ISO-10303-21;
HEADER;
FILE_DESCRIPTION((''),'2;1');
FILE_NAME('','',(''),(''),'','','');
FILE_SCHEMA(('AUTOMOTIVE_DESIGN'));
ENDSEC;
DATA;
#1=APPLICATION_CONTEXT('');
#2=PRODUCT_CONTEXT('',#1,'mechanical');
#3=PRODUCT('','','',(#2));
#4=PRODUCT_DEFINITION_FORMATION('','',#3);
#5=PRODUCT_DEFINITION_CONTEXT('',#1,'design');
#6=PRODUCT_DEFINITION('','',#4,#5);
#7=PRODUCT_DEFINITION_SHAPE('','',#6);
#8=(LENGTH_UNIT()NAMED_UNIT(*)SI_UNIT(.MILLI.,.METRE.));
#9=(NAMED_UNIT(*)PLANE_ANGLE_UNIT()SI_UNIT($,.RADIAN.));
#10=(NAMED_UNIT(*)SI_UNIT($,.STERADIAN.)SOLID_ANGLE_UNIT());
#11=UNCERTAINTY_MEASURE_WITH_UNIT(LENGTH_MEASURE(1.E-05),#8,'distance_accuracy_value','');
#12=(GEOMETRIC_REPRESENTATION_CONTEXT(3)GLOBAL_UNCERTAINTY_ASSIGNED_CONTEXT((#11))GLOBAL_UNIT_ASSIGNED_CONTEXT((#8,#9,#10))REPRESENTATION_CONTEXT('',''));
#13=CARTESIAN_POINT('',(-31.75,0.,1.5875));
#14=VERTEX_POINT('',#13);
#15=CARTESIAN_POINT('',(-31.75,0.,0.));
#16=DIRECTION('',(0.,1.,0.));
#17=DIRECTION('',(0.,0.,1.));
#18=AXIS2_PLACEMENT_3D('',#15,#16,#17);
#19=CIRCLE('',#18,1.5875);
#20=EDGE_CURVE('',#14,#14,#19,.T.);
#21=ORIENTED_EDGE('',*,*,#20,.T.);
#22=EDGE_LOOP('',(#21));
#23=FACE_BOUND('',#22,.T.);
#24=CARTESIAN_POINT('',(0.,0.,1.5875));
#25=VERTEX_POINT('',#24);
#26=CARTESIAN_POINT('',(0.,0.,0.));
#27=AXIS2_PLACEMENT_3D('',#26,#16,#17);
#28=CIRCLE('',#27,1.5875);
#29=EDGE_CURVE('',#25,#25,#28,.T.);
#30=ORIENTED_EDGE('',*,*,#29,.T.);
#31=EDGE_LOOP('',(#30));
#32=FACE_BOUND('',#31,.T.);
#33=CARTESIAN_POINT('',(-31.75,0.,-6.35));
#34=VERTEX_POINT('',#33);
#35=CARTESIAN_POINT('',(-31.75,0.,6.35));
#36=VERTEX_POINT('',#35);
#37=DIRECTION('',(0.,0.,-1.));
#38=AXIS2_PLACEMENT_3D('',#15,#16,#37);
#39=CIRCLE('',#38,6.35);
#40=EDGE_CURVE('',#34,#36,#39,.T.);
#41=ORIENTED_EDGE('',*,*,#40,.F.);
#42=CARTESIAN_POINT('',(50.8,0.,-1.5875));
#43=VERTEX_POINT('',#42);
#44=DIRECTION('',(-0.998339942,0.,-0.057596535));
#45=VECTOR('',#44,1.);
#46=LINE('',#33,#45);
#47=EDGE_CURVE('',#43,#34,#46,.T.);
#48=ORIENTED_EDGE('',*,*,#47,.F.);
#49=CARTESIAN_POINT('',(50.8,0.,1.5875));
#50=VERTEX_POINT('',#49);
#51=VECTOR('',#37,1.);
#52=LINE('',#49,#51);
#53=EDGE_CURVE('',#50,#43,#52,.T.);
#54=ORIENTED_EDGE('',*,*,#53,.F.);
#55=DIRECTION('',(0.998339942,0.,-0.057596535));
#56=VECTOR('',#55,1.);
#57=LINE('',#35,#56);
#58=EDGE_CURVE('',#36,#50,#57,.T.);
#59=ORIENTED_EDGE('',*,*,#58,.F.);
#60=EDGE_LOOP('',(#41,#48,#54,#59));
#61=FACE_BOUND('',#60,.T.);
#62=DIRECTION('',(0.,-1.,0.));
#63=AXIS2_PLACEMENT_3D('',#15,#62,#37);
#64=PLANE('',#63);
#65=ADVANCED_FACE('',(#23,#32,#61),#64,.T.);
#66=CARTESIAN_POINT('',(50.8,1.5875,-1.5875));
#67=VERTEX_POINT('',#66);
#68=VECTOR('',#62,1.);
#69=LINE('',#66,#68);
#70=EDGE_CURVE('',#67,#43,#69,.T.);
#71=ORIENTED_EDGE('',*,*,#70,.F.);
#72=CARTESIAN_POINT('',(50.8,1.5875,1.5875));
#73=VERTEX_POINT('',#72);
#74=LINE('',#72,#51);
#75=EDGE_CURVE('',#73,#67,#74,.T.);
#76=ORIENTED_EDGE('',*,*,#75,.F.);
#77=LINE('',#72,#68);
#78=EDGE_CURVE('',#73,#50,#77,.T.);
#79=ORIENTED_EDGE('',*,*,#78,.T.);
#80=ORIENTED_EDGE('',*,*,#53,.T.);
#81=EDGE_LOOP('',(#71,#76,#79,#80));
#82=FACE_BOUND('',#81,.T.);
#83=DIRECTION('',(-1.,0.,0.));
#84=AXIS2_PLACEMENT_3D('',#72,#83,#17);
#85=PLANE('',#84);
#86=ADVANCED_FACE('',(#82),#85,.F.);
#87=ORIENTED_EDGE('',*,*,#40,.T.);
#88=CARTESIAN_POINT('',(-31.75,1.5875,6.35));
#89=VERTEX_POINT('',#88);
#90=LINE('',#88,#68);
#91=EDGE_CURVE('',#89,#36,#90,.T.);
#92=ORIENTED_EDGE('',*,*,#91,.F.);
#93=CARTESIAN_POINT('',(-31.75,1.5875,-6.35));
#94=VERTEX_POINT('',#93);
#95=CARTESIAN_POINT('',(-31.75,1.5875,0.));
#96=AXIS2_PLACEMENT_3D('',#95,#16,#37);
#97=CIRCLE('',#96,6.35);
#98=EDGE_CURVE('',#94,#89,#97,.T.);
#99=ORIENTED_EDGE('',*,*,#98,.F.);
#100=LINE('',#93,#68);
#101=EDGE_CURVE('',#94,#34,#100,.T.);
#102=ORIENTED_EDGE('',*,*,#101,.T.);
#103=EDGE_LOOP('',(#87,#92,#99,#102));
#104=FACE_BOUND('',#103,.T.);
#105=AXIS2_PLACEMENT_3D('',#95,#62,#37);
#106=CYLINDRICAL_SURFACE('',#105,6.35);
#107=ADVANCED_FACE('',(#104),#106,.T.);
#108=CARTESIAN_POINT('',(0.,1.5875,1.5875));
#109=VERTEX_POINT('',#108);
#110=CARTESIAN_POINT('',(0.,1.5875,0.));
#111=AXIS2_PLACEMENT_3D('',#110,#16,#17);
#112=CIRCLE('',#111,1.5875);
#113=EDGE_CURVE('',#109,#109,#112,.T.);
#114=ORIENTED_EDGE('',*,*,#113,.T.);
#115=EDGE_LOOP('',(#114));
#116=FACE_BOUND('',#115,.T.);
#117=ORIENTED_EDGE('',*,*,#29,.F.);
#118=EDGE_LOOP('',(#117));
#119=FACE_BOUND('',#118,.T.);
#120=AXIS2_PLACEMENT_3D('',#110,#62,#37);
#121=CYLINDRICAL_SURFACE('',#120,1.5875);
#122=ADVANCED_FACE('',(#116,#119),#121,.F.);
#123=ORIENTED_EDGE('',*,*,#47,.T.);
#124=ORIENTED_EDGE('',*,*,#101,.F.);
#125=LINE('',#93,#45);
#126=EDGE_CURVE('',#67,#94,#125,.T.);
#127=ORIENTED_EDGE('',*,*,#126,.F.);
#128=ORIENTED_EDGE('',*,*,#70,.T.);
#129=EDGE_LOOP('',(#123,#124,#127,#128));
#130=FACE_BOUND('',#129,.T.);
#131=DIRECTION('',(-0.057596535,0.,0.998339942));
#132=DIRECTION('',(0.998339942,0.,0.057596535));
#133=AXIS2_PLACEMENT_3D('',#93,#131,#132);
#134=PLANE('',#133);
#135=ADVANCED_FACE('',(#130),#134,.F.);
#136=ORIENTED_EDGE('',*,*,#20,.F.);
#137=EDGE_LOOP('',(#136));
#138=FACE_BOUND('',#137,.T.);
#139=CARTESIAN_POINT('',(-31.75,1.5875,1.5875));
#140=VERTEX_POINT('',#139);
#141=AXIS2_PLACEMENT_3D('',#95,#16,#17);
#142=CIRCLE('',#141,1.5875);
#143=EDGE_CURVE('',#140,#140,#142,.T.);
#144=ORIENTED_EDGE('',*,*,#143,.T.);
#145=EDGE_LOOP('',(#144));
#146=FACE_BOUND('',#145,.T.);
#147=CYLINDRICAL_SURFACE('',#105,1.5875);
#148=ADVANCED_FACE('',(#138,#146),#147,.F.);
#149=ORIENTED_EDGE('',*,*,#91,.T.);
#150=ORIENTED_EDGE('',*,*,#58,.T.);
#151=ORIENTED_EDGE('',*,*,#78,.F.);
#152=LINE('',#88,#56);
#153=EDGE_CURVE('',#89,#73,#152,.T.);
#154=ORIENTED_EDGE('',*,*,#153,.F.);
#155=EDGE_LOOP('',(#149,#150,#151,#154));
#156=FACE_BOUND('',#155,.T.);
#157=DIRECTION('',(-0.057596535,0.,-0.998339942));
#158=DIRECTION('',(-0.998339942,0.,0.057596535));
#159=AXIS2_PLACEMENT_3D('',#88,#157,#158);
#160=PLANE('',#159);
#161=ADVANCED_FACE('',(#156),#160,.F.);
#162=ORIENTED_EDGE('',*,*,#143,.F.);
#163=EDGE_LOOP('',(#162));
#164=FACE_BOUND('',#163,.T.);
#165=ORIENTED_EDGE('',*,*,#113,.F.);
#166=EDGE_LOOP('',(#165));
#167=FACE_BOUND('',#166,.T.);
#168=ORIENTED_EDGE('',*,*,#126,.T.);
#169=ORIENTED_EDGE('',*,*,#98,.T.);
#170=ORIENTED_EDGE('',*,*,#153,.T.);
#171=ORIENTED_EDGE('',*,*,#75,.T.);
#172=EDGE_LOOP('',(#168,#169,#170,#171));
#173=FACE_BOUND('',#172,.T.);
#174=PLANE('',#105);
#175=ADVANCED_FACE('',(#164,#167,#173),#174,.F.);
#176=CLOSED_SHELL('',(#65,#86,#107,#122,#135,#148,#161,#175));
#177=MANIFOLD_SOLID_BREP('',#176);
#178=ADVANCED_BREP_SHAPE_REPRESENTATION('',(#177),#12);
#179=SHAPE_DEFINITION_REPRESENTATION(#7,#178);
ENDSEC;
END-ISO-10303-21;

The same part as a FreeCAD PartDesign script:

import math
import FreeCAD as App
import Part
import Sketcher
Q = App.Units.Quantity

doc = App.newDocument("Part")
body = doc.addObject("PartDesign::Body", "Body")

# Sketch on XZ plane
sketch1 = body.newObject("Sketcher::SketchObject", "Sketch")
sketch1.AttachmentSupport = (doc.getObject("XZ_Plane"), [""])
sketch1.MapMode = "FlatFace"
sketch1.addGeometry(Part.LineSegment(App.Vector(-31.75, 6.35, 0), App.Vector(50.8, 1.5875, 0)), False)
sketch1.addGeometry(Part.LineSegment(App.Vector(50.8, 1.5875, 0), App.Vector(50.8, -1.5875, 0)), False)
sketch1.addGeometry(Part.LineSegment(App.Vector(50.8, -1.5875, 0), App.Vector(-31.75, -6.35, 0)), False)
sketch1.addGeometry(Part.ArcOfCircle(Part.Circle(App.Vector(-31.75, 0, 0), App.Vector(0, 0, 1), 6.35), math.radians(90), math.radians(270)), False)
sketch1.addGeometry(Part.Circle(App.Vector(-31.75, 0, 0), App.Vector(0, 0, 1), 1.5875), False)
sketch1.addGeometry(Part.Circle(App.Vector(0, 0, 0), App.Vector(0, 0, 1), 1.5875), False)
sketch1.addConstraint(Sketcher.Constraint("Coincident", 0, 2, 1, 1))
sketch1.addConstraint(Sketcher.Constraint("Coincident", 1, 2, 2, 1))
sketch1.addConstraint(Sketcher.Constraint("Coincident", 2, 2, 3, 2))
sketch1.addConstraint(Sketcher.Constraint("Coincident", 3, 1, 0, 1))
sketch1.addConstraint(Sketcher.Constraint("Vertical", 1))
sketch1.addConstraint(Sketcher.Constraint("Coincident", 5, 3, -1, 1))
sketch1.addConstraint(Sketcher.Constraint("Coincident", 4, 3, 3, 3))
sketch1.addConstraint(Sketcher.Constraint("Equal", 4, 5))
sketch1.addConstraint(Sketcher.Constraint("Symmetric", 2, 2, 3, 1, -1))
sketch1.addConstraint(Sketcher.Constraint("Vertical", 4, 3, 2, 2))
sketch1.addConstraint(Sketcher.Constraint("Equal", 0, 2))
sketch1.addConstraint(Sketcher.Constraint("Radius", 3, Q("0.25 in")))
sketch1.addConstraint(Sketcher.Constraint("Diameter", 4, Q("0.125 in")))
sketch1.addConstraint(Sketcher.Constraint("DistanceX", -1, 1, 0, 2, Q("2 in")))
sketch1.addConstraint(Sketcher.Constraint("DistanceY", 1, 2, 1, 1, Q("0.125 in")))
sketch1.addConstraint(Sketcher.Constraint("DistanceX", 3, 3, -1, 1, Q("1.25 in")))
pad1 = body.newObject("PartDesign::Pad", "Pad")
pad1.Profile = sketch1
pad1.Length = Q("0.0625 in")
pad1.Reversed = True

doc.recompute()
